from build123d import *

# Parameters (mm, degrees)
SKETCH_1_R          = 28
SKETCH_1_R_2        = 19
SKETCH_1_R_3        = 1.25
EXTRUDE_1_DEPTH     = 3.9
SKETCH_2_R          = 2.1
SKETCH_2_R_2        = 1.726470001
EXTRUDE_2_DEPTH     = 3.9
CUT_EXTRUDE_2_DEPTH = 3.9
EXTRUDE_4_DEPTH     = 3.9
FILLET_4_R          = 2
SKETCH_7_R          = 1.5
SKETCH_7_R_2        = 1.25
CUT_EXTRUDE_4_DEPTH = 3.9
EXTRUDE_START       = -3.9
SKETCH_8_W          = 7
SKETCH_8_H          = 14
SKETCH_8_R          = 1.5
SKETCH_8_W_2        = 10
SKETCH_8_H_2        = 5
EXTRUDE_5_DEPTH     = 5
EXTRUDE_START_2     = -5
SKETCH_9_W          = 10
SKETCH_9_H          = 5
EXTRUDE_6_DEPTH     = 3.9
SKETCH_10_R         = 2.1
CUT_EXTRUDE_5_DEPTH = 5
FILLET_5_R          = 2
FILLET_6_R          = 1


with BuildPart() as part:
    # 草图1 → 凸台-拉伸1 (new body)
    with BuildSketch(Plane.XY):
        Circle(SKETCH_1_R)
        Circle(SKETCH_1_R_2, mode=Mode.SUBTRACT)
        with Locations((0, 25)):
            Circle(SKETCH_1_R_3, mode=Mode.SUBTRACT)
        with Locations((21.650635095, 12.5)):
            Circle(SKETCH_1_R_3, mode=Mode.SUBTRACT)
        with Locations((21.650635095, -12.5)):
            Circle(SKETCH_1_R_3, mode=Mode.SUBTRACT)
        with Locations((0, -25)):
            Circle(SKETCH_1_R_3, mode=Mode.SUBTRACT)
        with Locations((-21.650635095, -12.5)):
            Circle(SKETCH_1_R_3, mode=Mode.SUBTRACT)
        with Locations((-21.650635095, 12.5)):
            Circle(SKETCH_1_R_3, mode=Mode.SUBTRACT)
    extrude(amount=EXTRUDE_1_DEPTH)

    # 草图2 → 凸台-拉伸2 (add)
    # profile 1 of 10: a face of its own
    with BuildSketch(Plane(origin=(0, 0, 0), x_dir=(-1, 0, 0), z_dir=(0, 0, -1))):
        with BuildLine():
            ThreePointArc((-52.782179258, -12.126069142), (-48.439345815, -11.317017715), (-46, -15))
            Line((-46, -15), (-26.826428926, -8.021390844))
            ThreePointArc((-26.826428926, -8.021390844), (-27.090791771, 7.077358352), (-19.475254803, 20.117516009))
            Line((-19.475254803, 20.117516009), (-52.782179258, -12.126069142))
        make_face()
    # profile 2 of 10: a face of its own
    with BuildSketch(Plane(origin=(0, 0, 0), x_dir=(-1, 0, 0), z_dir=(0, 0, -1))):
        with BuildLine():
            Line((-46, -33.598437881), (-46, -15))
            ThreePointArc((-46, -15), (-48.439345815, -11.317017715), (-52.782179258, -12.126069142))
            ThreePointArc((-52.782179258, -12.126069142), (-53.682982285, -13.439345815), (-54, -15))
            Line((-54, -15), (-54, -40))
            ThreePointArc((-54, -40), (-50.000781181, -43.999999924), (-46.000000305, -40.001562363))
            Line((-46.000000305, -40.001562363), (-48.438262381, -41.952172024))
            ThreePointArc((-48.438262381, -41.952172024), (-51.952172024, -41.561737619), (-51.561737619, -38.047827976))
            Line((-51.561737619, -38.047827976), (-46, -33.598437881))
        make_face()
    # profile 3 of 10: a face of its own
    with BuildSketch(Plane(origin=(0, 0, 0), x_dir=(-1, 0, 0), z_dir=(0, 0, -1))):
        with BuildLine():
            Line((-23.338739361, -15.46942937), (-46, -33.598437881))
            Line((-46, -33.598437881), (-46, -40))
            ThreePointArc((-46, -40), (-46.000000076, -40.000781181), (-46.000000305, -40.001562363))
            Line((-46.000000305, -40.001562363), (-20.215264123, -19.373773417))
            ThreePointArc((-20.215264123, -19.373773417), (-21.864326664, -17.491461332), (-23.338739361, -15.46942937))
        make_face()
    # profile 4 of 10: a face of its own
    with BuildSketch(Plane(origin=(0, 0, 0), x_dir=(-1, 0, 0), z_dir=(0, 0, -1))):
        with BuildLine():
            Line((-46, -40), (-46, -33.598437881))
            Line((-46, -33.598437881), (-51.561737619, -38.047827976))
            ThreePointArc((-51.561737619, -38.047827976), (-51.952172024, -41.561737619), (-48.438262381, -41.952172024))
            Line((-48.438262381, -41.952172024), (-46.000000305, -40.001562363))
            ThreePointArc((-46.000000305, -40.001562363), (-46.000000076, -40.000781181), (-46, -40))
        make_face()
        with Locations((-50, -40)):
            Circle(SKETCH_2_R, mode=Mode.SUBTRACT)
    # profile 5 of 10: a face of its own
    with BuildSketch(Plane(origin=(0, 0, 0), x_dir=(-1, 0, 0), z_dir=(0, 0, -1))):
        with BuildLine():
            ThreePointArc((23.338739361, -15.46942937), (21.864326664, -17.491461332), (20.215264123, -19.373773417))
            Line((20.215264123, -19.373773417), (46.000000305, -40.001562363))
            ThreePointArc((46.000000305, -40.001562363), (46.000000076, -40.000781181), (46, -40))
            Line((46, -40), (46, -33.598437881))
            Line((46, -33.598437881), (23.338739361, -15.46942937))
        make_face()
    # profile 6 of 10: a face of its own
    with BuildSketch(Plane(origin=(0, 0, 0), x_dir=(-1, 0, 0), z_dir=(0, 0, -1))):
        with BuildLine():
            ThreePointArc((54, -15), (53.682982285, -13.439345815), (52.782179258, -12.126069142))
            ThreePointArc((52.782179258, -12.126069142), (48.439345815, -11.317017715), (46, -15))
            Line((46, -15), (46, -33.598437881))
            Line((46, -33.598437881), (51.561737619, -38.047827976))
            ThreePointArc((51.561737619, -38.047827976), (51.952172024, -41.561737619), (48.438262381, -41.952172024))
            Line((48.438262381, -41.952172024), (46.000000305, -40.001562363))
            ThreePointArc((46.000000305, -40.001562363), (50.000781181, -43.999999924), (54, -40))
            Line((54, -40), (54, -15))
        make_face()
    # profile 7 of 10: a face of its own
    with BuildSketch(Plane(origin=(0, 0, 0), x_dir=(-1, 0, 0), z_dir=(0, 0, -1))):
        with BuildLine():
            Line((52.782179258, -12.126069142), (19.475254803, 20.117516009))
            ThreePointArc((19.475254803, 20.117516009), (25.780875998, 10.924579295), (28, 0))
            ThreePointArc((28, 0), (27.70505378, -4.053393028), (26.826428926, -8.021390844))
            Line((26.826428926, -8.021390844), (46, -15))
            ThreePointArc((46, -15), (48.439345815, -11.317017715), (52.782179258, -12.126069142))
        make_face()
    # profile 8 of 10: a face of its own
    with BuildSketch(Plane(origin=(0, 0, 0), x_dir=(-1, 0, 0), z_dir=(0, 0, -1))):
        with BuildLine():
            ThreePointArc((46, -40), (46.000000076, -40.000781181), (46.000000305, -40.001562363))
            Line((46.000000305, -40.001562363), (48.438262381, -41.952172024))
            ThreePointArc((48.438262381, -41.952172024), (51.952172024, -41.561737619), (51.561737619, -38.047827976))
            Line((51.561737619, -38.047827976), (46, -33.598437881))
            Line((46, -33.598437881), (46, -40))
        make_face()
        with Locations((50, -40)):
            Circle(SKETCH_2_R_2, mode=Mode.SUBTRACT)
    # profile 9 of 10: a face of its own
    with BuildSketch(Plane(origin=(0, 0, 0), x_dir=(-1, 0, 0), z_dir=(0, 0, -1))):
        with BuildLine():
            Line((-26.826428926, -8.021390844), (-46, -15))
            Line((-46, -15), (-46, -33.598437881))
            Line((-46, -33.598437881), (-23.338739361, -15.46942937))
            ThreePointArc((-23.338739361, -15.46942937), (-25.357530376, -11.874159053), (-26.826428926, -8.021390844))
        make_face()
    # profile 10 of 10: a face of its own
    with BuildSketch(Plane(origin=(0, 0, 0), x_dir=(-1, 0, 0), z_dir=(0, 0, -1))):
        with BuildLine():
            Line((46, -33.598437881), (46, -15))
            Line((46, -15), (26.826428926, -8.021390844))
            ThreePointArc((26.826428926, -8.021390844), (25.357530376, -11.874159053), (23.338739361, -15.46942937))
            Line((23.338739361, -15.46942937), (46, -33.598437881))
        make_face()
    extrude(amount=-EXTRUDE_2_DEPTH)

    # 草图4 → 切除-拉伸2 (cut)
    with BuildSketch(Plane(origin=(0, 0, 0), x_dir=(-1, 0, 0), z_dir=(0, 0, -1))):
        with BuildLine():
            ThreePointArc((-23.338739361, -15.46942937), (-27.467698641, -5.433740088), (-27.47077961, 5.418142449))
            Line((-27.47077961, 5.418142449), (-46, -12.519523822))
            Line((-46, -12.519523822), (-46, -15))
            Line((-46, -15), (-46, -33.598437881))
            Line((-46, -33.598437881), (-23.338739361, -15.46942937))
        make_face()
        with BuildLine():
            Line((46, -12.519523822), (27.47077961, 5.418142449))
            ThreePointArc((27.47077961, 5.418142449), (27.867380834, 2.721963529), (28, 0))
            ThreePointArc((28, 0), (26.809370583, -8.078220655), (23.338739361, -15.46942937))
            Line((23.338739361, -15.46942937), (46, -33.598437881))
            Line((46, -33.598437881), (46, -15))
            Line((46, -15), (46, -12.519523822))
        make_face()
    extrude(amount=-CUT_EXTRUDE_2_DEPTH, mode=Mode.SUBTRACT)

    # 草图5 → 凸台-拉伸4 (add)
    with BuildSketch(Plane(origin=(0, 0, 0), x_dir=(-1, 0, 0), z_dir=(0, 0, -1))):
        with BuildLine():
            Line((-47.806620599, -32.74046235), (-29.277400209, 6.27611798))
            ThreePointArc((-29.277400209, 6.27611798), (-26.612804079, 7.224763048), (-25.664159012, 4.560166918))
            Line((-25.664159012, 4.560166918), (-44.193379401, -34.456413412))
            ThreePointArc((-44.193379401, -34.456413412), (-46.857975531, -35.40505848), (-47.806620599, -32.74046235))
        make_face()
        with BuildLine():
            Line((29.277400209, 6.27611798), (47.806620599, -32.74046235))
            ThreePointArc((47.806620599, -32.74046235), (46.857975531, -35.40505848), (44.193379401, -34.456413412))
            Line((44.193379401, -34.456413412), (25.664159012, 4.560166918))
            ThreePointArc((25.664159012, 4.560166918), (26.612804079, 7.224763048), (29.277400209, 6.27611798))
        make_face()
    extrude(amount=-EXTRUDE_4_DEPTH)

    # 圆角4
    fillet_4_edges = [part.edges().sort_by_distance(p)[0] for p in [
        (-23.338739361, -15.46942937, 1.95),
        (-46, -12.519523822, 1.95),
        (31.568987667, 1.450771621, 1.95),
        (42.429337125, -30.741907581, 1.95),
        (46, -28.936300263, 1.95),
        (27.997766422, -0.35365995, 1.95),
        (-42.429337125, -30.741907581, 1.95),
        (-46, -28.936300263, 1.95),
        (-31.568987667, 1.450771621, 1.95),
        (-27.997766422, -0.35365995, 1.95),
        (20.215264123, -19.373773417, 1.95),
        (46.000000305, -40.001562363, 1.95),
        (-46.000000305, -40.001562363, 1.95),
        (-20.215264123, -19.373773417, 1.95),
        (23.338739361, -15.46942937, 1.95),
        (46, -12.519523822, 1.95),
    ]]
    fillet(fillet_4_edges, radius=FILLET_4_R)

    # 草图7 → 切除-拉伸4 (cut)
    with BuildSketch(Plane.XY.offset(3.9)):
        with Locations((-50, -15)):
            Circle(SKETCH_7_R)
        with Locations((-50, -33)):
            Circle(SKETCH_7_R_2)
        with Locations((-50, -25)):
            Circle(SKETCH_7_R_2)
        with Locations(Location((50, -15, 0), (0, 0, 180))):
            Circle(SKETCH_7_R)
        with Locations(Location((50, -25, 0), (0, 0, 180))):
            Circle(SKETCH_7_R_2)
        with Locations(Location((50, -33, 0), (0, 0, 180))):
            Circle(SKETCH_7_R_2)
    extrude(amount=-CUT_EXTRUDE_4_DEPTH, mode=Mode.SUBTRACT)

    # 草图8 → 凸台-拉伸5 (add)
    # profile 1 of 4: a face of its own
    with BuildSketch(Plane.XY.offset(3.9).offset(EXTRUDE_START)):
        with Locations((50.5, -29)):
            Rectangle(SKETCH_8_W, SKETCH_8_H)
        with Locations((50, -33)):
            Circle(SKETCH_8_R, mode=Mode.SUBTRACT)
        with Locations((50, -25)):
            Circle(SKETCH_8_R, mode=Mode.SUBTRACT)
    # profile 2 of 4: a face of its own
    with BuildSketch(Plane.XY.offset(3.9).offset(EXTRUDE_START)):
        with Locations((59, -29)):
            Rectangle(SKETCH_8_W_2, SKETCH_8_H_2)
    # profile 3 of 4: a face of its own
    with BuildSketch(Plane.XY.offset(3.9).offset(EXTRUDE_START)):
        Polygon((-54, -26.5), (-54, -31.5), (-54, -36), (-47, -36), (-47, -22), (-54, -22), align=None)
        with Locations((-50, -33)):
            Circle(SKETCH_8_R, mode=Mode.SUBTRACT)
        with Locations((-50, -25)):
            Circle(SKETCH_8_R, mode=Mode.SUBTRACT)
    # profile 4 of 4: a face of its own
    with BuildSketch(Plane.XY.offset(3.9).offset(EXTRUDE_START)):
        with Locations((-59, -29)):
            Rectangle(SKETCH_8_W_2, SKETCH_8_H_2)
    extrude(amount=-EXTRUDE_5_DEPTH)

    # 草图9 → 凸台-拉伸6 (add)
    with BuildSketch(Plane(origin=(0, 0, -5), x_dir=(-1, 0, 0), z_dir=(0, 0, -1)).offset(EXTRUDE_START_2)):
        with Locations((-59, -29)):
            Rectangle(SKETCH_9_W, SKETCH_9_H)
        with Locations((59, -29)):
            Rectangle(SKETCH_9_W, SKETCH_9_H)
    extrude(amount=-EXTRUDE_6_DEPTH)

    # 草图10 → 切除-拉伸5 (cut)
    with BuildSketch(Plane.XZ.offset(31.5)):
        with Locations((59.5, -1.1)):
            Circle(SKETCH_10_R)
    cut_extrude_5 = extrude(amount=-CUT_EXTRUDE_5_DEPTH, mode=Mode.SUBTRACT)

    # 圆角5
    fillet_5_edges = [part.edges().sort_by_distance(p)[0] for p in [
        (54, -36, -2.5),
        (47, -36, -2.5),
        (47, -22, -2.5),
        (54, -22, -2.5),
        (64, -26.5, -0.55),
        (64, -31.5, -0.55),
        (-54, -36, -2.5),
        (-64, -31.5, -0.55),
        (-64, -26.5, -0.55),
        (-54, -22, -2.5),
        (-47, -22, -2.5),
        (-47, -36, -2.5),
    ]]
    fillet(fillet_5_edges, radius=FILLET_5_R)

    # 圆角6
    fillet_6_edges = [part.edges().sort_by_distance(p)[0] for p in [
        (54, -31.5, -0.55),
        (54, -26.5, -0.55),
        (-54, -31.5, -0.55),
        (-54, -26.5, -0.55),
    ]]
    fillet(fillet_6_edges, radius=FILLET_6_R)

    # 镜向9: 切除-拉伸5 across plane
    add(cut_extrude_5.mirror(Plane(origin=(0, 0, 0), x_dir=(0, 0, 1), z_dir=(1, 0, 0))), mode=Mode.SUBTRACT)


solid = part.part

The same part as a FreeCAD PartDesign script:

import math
import FreeCAD as App
import Part
import Sketcher

V = App.Vector


def edges_at(feature, points):
    """Names of the edges that pass closest to the given points."""
    edges = feature.Shape.Edges
    near = lambda p: min(range(len(edges)), key=lambda i: edges[i].distToShape(Part.Vertex(*p))[0])
    return sorted({f"Edge{near(p) + 1}" for p in points})

doc = App.newDocument("Part")
params = doc.addObject("Spreadsheet::Sheet", "Params")
for row, (alias, value) in enumerate([
    ("sketch1_diameter", "56 mm"),
    ("sketch1_diameter2", "38 mm"),
    ("sketch1_diameter3", "2.5 mm"),
    ("pad1_length", "3.9 mm"),
    ("sketch2_radius", "28 mm"),
    ("sketch2_radius2", "4 mm"),
    ("sketch2_diameter", "4.2 mm"),
    ("sketch2_height", "25 mm"),
    ("pad2_length", "3.9 mm"),
    ("sketch3_radius", "28 mm"),
    ("pocket1_length", "3.9 mm"),
    ("sketch4_radius", "2 mm"),
    ("sketch4_radius2", "2 mm"),
    ("sketch4_radius3", "2 mm"),
    ("sketch4_radius4", "2 mm"),
    ("pad3_length", "3.9 mm"),
    ("fillet_radius", "2 mm"),
    ("sketch5_diameter", "3 mm"),
    ("sketch5_diameter2", "2.5 mm"),
    ("pocket2_length", "3.9 mm"),
    ("sketch6_diameter", "3 mm"),
    ("sketch6_width", "7 mm"),
    ("sketch6_width2", "10 mm"),
    ("sketch6_height", "14 mm"),
    ("sketch6_height2", "5 mm"),
    ("pad4_length", "5 mm"),
    ("sketch7_width", "10 mm"),
    ("sketch7_height", "5 mm"),
    ("pad5_length", "3.9 mm"),
    ("sketch8_diameter", "4.2 mm"),
    ("pocket3_length", "5 mm"),
    ("fillet2_radius", "2 mm"),
    ("fillet3_radius", "1 mm"),
], start=1):
    params.set(f"A{row}", alias)
    params.set(f"B{row}", "=" + value)
    params.setAlias(f"B{row}", alias)

body = doc.addObject("PartDesign::Body", "Body")

# Sketch on XY plane
sketch1 = body.newObject("Sketcher::SketchObject", "Sketch")
sketch1.AttachmentSupport = (doc.getObject("XY_Plane"), [""])
sketch1.MapMode = "FlatFace"
sketch1.addGeometry(Part.Circle(V(0, 0, 0), V(0, 0, 1), 28), False)
sketch1.addGeometry(Part.Circle(V(-21.7, -12.5, 0), V(0, 0, 1), 1.2), False)
sketch1.addGeometry(Part.Circle(V(0, -25, 0), V(0, 0, 1), 1.2), False)
sketch1.addGeometry(Part.Circle(V(21.7, -12.5, 0), V(0, 0, 1), 1.2), False)
sketch1.addGeometry(Part.Circle(V(-21.7, 12.5, 0), V(0, 0, 1), 1.2), False)
sketch1.addGeometry(Part.Circle(V(0, 0, 0), V(0, 0, 1), 19), False)
sketch1.addGeometry(Part.Circle(V(21.7, 12.5, 0), V(0, 0, 1), 1.2), False)
sketch1.addGeometry(Part.Circle(V(0, 25, 0), V(0, 0, 1), 1.2), False)
sketch1.addConstraint(Sketcher.Constraint("Coincident", 0, 3, -1, 1))
sketch1.addConstraint(Sketcher.Constraint("Coincident", 5, 3, -1, 1))
sketch1.addConstraint(Sketcher.Constraint("Equal", 1, 2))
sketch1.addConstraint(Sketcher.Constraint("Equal", 2, 3))
sketch1.addConstraint(Sketcher.Constraint("Equal", 3, 4))
sketch1.addConstraint(Sketcher.Constraint("Equal", 4, 6))
sketch1.addConstraint(Sketcher.Constraint("Equal", 6, 7))
sketch1.addConstraint(Sketcher.Constraint("Symmetric", 3, 3, 4, 3, -1, 1))
sketch1.addConstraint(Sketcher.Constraint("Symmetric", 1, 3, 6, 3, -1, 1))
sketch1.addConstraint(Sketcher.Constraint("Symmetric", 2, 3, 7, 3, -1, 1))
sketch1.addConstraint(Sketcher.Constraint("Symmetric", 1, 3, 3, 3, -2))
sketch1.addConstraint(Sketcher.Constraint("PointOnObject", 2, 3, -2))
sketch1.addConstraint(Sketcher.Constraint("Diameter", 0, 56.0))
sketch1.addConstraint(Sketcher.Constraint("Diameter", 5, 38.0))
sketch1.addConstraint(Sketcher.Constraint("Diameter", 1, 2.5))
sketch1.addConstraint(Sketcher.Constraint("DistanceY", 2, 3, -1, 1, 25.0))
sketch1.addConstraint(Sketcher.Constraint("DistanceY", 1, 3, 4, 3, 25.0))
sketch1.addConstraint(Sketcher.Constraint("DistanceX", 1, 3, 3, 3, 43.30127))
sketch1.setExpression("Constraints[12]", "Params.sketch1_diameter")
sketch1.setExpression("Constraints[13]", "Params.sketch1_diameter2")
sketch1.setExpression("Constraints[14]", "Params.sketch1_diameter3")
pad1 = body.newObject("PartDesign::Pad", "Pad")
pad1.Profile = sketch1
pad1.setExpression("Length", "Params.pad1_length")

# Sketch on XY plane
sketch2 = body.newObject("Sketcher::SketchObject", "Sketch001")
sketch2.AttachmentSupport = (doc.getObject("XY_Plane"), [""])
sketch2.MapMode = "FlatFace"
sketch2.addGeometry(Part.ArcOfCircle(Part.Circle(V(0, 0, 0), V(0, 0, 1), 28), math.radians(-17), math.radians(46)), False)
sketch2.addGeometry(Part.LineSegment(V(19.5, 20.1, 0), V(52.8, -12.1, 0)), False)
sketch2.addGeometry(Part.ArcOfCircle(Part.Circle(V(50, -15, 0), V(0, 0, 1), 4), math.radians(0), math.radians(46)), False)
sketch2.addGeometry(Part.LineSegment(V(54, -15, 0), V(54, -40, 0)), False)
sketch2.addGeometry(Part.ArcOfCircle(Part.Circle(V(50, -40, 0), V(0, 0, 1), 4), math.radians(-180), math.radians(0)), False)
sketch2.addGeometry(Part.LineSegment(V(46, -40, 0), V(20.2, -19.4, 0)), False)
sketch2.addGeometry(Part.ArcOfCircle(Part.Circle(V(0, 0, 0), V(0, 0, 1), 28), math.radians(-43.78), math.radians(-33.54)), False)
sketch2.addGeometry(Part.ArcOfCircle(Part.Circle(V(0, 0, 0), V(0, 0, 1), 28), math.radians(-33.54), math.radians(-16.65)), False)
sketch2.addGeometry(Part.Circle(V(50, -40, 0), V(0, 0, 1), 2.1), False)
sketch2.addGeometry(Part.ArcOfCircle(Part.Circle(V(0, 0, 0), V(0, 0, 1), 28), math.radians(-146.46), math.radians(-136.22)), False)
sketch2.addGeometry(Part.LineSegment(V(-20.2, -19.4, 0), V(-46, -40, 0)), False)
sketch2.addGeometry(Part.ArcOfCircle(Part.Circle(V(-50, -40, 0), V(0, 0, 1), 4), math.radians(180), math.radians(360)), False)
sketch2.addGeometry(Part.LineSegment(V(-54, -40, 0), V(-54, -15, 0)), False)
sketch2.addGeometry(Part.ArcOfCircle(Part.Circle(V(-50, -15, 0), V(0, 0, 1), 4), math.radians(134), math.radians(180)), False)
sketch2.addGeometry(Part.LineSegment(V(-52.8, -12.1, 0), V(-19.5, 20.1, 0)), False)
sketch2.addGeometry(Part.ArcOfCircle(Part.Circle(V(0, 0, 0), V(0, 0, 1), 28), math.radians(134), math.radians(180)), False)
sketch2.addGeometry(Part.ArcOfCircle(Part.Circle(V(0, 0, 0), V(0, 0, 1), 28), math.radians(-180), math.radians(-163.35)), False)
sketch2.addGeometry(Part.ArcOfCircle(Part.Circle(V(0, 0, 0), V(0, 0, 1), 28), math.radians(-163.35), math.radians(-146.46)), False)
sketch2.addGeometry(Part.Circle(V(-50, -40, 0), V(0, 0, 1), 1.7), False)
sketch2.addConstraint(Sketcher.Constraint("Tangent", 0, 2, 1, 1))
sketch2.addConstraint(Sketcher.Constraint("Tangent", 1, 2, 2, 2))
sketch2.addConstraint(Sketcher.Constraint("Tangent", 2, 1, 3, 1))
sketch2.addConstraint(Sketcher.Constraint("Tangent", 3, 2, 4, 2))
sketch2.addConstraint(Sketcher.Constraint("Coincident", 4, 1, 5, 1))
sketch2.addConstraint(Sketcher.Constraint("Coincident", 5, 2, 6, 1))
sketch2.addConstraint(Sketcher.Constraint("Tangent", 6, 2, 7, 1))
sketch2.addConstraint(Sketcher.Constraint("Tangent", 7, 2, 0, 1))
sketch2.addConstraint(Sketcher.Constraint("Coincident", 9, 2, 10, 1))
sketch2.addConstraint(Sketcher.Constraint("Coincident", 10, 2, 11, 2))
sketch2.addConstraint(Sketcher.Constraint("Tangent", 11, 1, 12, 1))
sketch2.addConstraint(Sketcher.Constraint("Tangent", 12, 2, 13, 2))
sketch2.addConstraint(Sketcher.Constraint("Tangent", 13, 1, 14, 1))
sketch2.addConstraint(Sketcher.Constraint("Tangent", 14, 2, 15, 1))
sketch2.addConstraint(Sketcher.Constraint("Tangent", 15, 2, 16, 1))
sketch2.addConstraint(Sketcher.Constraint("Tangent", 16, 2, 17, 1))
sketch2.addConstraint(Sketcher.Constraint("Tangent", 17, 2, 9, 1))
sketch2.addConstraint(Sketcher.Constraint("Vertical", 3))
sketch2.addConstraint(Sketcher.Constraint("Vertical", 12))
sketch2.addConstraint(Sketcher.Constraint("Coincident", 0, 3, -1, 1))
sketch2.addConstraint(Sketcher.Constraint("Coincident", 6, 3, -1, 1))
sketch2.addConstraint(Sketcher.Constraint("Coincident", 9, 3, -1, 1))
sketch2.addConstraint(Sketcher.Constraint("Coincident", 15, 3, -1, 1))
sketch2.addConstraint(Sketcher.Constraint("Coincident", 8, 3, 4, 3))
sketch2.addConstraint(Sketcher.Constraint("Coincident", 18, 3, 11, 3))
sketch2.addConstraint(Sketcher.Constraint("Equal", 2, 4))
sketch2.addConstraint(Sketcher.Constraint("Equal", 7, 9))
sketch2.addConstraint(Sketcher.Constraint("Equal", 4, 11))
sketch2.addConstraint(Sketcher.Constraint("Equal", 11, 13))
sketch2.addConstraint(Sketcher.Constraint("Equal", 9, 15))
sketch2.addConstraint(Sketcher.Constraint("Symmetric", 4, 3, 11, 3, -2))
sketch2.addConstraint(Sketcher.Constraint("PointOnObject", 15, 2, -1))
sketch2.addConstraint(Sketcher.Constraint("Horizontal", 2, 3, 13, 3))
sketch2.addConstraint(Sketcher.Constraint("Horizontal", 5, 2, 9, 2))
sketch2.addConstraint(Sketcher.Constraint("Horizontal", 4, 1, 10, 2))
sketch2.addConstraint(Sketcher.Constraint("Horizontal", 7, 2, 16, 2))
sketch2.addConstraint(Sketcher.Constraint("Horizontal", 6, 2, 17, 2))
sketch2.addConstraint(Sketcher.Constraint("Radius", 0, 28.0))
sketch2.addConstraint(Sketcher.Constraint("Radius", 2, 4.0))
sketch2.addConstraint(Sketcher.Constraint("Diameter", 8, 4.2))
sketch2.addConstraint(Sketcher.Constraint("DistanceY", 3, 2, 3, 1, 25.0))
sketch2.addConstraint(Sketcher.Constraint("DistanceX", -1, 1, 2, 3, 50.0))
sketch2.addConstraint(Sketcher.Constraint("DistanceY", 2, 3, -1, 1, 15.0))
sketch2.addConstraint(Sketcher.Constraint("Diameter", 18, 3.45294))
sketch2.addConstraint(Sketcher.Constraint("DistanceX", -1, 1, 6, 2, 23.338739))
sketch2.addConstraint(Sketcher.Constraint("DistanceX", -1, 1, 7, 2, 26.826429))
sketch2.addConstraint(Sketcher.Constraint("DistanceY", 10, 2, 9, 2, 20.627789))
sketch2.addConstraint(Sketcher.Constraint("Distance", 5, 33.020574))
sketch2.setExpression("Constraints[37]", "Params.sketch2_radius")
sketch2.setExpression("Constraints[38]", "Params.sketch2_radius2")
sketch2.setExpression("Constraints[39]", "Params.sketch2_diameter")
sketch2.setExpression("Constraints[40]", "Params.sketch2_height")
pad2 = body.newObject("PartDesign::Pad", "Pad001")
pad2.Profile = sketch2
pad2.setExpression("Length", "Params.pad2_length")

# Sketch on XY plane
sketch3 = body.newObject("Sketcher::SketchObject", "Sketch002")
sketch3.AttachmentSupport = (doc.getObject("XY_Plane"), [""])
sketch3.MapMode = "FlatFace"
sketch3.addGeometry(Part.ArcOfCircle(Part.Circle(V(0, 0, 0), V(0, 0, 1), 28), math.radians(-34), math.radians(11)), False)
sketch3.addGeometry(Part.LineSegment(V(27, 5, 0), V(46, -13, 0)), False)
sketch3.addGeometry(Part.LineSegment(V(46, -13, 0), V(46, -34, 0)), False)
sketch3.addGeometry(Part.LineSegment(V(46, -34, 0), V(23, -15, 0)), False)
sketch3.addGeometry(Part.LineSegment(V(-46, -13, 0), V(-27, 5, 0)), False)
sketch3.addGeometry(Part.ArcOfCircle(Part.Circle(V(0, 0, 0), V(0, 0, 1), 28), math.radians(168.84), math.radians(180)), False)
sketch3.addGeometry(Part.ArcOfCircle(Part.Circle(V(0, 0, 0), V(0, 0, 1), 28), math.radians(180), math.radians(214)), False)
sketch3.addGeometry(Part.LineSegment(V(-23, -15, 0), V(-46, -34, 0)), False)
sketch3.addGeometry(Part.LineSegment(V(-46, -34, 0), V(-46, -13, 0)), False)
sketch3.addConstraint(Sketcher.Constraint("Coincident", 0, 2, 1, 1))
sketch3.addConstraint(Sketcher.Constraint("Coincident", 1, 2, 2, 1))
sketch3.addConstraint(Sketcher.Constraint("Coincident", 2, 2, 3, 1))
sketch3.addConstraint(Sketcher.Constraint("Coincident", 3, 2, 0, 1))
sketch3.addConstraint(Sketcher.Constraint("Coincident", 4, 2, 5, 1))
sketch3.addConstraint(Sketcher.Constraint("Tangent", 5, 2, 6, 1))
sketch3.addConstraint(Sketcher.Constraint("Coincident", 6, 2, 7, 1))
sketch3.addConstraint(Sketcher.Constraint("Coincident", 7, 2, 8, 1))
sketch3.addConstraint(Sketcher.Constraint("Coincident", 8, 2, 4, 1))
sketch3.addConstraint(Sketcher.Constraint("Vertical", 2))
sketch3.addConstraint(Sketcher.Constraint("Vertical", 8))
sketch3.addConstraint(Sketcher.Constraint("Coincident", 0, 3, -1, 1))
sketch3.addConstraint(Sketcher.Constraint("Coincident", 5, 3, -1, 1))
sketch3.addConstraint(Sketcher.Constraint("Equal", 0, 5))
sketch3.addConstraint(Sketcher.Constraint("Equal", 5, 6))
sketch3.addConstraint(Sketcher.Constraint("Symmetric", 2, 2, 7, 2, -2))
sketch3.addConstraint(Sketcher.Constraint("PointOnObject", 5, 2, -1))
sketch3.addConstraint(Sketcher.Constraint("Horizontal", 0, 2, 4, 2))
sketch3.addConstraint(Sketcher.Constraint("Horizontal", 3, 2, 6, 2))
sketch3.addConstraint(Sketcher.Constraint("Horizontal", 1, 2, 8, 2))
sketch3.addConstraint(Sketcher.Constraint("Radius", 0, 28.0))
sketch3.addConstraint(Sketcher.Constraint("DistanceX", -1, 1, 1, 2, 46.0))
sketch3.addConstraint(Sketcher.Constraint("DistanceY", 2, 2, 2, 1, 21.078914))
sketch3.addConstraint(Sketcher.Constraint("DistanceX", -1, 1, 0, 2, 27.47078))
sketch3.addConstraint(Sketcher.Constraint("DistanceX", -1, 1, 3, 2, 23.338739))
sketch3.addConstraint(Sketcher.Constraint("DistanceY", 2, 2, 0, 2, 39.01658))
sketch3.setExpression("Constraints[20]", "Params.sketch3_radius")
pocket1 = body.newObject("PartDesign::Pocket", "Pocket")
pocket1.Profile = sketch3
pocket1.setExpression("Length", "Params.pocket1_length")
pocket1.Reversed = True

# Sketch on XY plane
sketch4 = body.newObject("Sketcher::SketchObject", "Sketch003")
sketch4.AttachmentSupport = (doc.getObject("XY_Plane"), [""])
sketch4.MapMode = "FlatFace"
sketch4.addGeometry(Part.LineSegment(V(29.2774, 6.276118, 0), V(47.806621, -32.740462, 0)), False)
sketch4.addGeometry(Part.ArcOfCircle(Part.Circle(V(46, -33.598438, 0), V(0, 0, 1), 2), math.radians(-154.596662), math.radians(25.403338)), False)
sketch4.addGeometry(Part.LineSegment(V(44.193379, -34.456413, 0), V(25.664159, 4.560167, 0)), False)
sketch4.addGeometry(Part.ArcOfCircle(Part.Circle(V(27.47078, 5.418142, 0), V(0, 0, 1), 2), math.radians(25.403338), math.radians(205.403338)), False)
sketch4.addGeometry(Part.LineSegment(V(-47.806621, -32.740462, 0), V(-29.2774, 6.276118, 0)), False)
sketch4.addGeometry(Part.ArcOfCircle(Part.Circle(V(-27.47078, 5.418142, 0), V(0, 0, 1), 2), math.radians(-25.403338), math.radians(154.596662)), False)
sketch4.addGeometry(Part.LineSegment(V(-25.664159, 4.560167, 0), V(-44.193379, -34.456413, 0)), False)
sketch4.addGeometry(Part.ArcOfCircle(Part.Circle(V(-46, -33.598438, 0), V(0, 0, 1), 2), math.radians(154.596662), math.radians(334.596662)), False)
sketch4.addConstraint(Sketcher.Constraint("Coincident", 0, 2, 1, 2))
sketch4.addConstraint(Sketcher.Constraint("Coincident", 1, 1, 2, 1))
sketch4.addConstraint(Sketcher.Constraint("Coincident", 2, 2, 3, 2))
sketch4.addConstraint(Sketcher.Constraint("Coincident", 3, 1, 0, 1))
sketch4.addConstraint(Sketcher.Constraint("Coincident", 4, 2, 5, 2))
sketch4.addConstraint(Sketcher.Constraint("Coincident", 5, 1, 6, 1))
sketch4.addConstraint(Sketcher.Constraint("Coincident", 6, 2, 7, 2))
sketch4.addConstraint(Sketcher.Constraint("Coincident", 7, 1, 4, 1))
sketch4.addConstraint(Sketcher.Constraint("Radius", 1, 2.0))
sketch4.addConstraint(Sketcher.Constraint("Radius", 3, 2.0))
sketch4.addConstraint(Sketcher.Constraint("Radius", 5, 2.0))
sketch4.addConstraint(Sketcher.Constraint("Radius", 7, 2.0))
sketch4.addConstraint(Sketcher.Constraint("DistanceX", -1, 1, 1, 3, 46.0))
sketch4.addConstraint(Sketcher.Constraint("DistanceX", 7, 3, -1, 1, 46.0))
sketch4.addConstraint(Sketcher.Constraint("DistanceX", -1, 1, 3, 1, 29.2774))
sketch4.addConstraint(Sketcher.Constraint("DistanceX", 4, 2, -1, 1, 29.2774))
sketch4.addConstraint(Sketcher.Constraint("DistanceX", 5, 3, 0, 2, 75.2774))
sketch4.addConstraint(Sketcher.Constraint("DistanceX", 3, 3, 1, 1, 16.7226))
sketch4.addConstraint(Sketcher.Constraint("DistanceX", 6, 2, 5, 3, 16.7226))
sketch4.addConstraint(Sketcher.Constraint("DistanceX", -1, 1, 3, 3, 27.47078))
sketch4.addConstraint(Sketcher.Constraint("DistanceX", 5, 3, -1, 1, 27.47078))
sketch4.addConstraint(Sketcher.Constraint("DistanceX", -1, 1, 2, 2, 25.664159))
sketch4.addConstraint(Sketcher.Constraint("DistanceX", 5, 1, -1, 1, 25.664159))
sketch4.addConstraint(Sketcher.Constraint("DistanceX", 7, 1, -1, 1, 47.806621))
sketch4.addConstraint(Sketcher.Constraint("DistanceY", 1, 3, 3, 3, 39.01658))
sketch4.addConstraint(Sketcher.Constraint("DistanceY", 1, 3, 5, 3, 39.01658))
sketch4.addConstraint(Sketcher.Constraint("DistanceY", 7, 3, 5, 3, 39.01658))
sketch4.addConstraint(Sketcher.Constraint("DistanceY", 1, 3, -1, 1, 33.598438))
sketch4.setExpression("Constraints[8]", "Params.sketch4_radius")
sketch4.setExpression("Constraints[9]", "Params.sketch4_radius2")
sketch4.setExpression("Constraints[10]", "Params.sketch4_radius3")
sketch4.setExpression("Constraints[11]", "Params.sketch4_radius4")
pad3 = body.newObject("PartDesign::Pad", "Pad002")
pad3.Profile = sketch4
pad3.setExpression("Length", "Params.pad3_length")
doc.recompute()

fillet = body.newObject("PartDesign::Fillet", "Fillet")
fillet.Base = (pad3, edges_at(pad3, [
    (-23.339, -15.469, 1.95),
    (-46, -12.52, 1.95),
    (31.569, 1.451, 1.95),
    (42.429, -30.742, 1.95),
    (46, -28.936, 1.95),
    (27.998, -0.354, 1.95),
    (-42.429, -30.742, 1.95),
    (-46, -28.936, 1.95),
    (-31.569, 1.451, 1.95),
    (-27.998, -0.354, 1.95),
    (20.215, -19.374, 1.95),
    (46, -40.002, 1.95),
    (-46, -40.002, 1.95),
    (-20.215, -19.374, 1.95),
    (23.339, -15.469, 1.95),
    (46, -12.52, 1.95),
]))
fillet.setExpression("Radius", "Params.fillet_radius")

# Sketch on XY plane
sketch5 = body.newObject("Sketcher::SketchObject", "Sketch004")
sketch5.AttachmentSupport = (doc.getObject("XY_Plane"), [""])
sketch5.MapMode = "FlatFace"
sketch5.AttachmentOffset = App.Placement(V(0, 0, 3.9), App.Rotation())
sketch5.addGeometry(Part.Circle(V(-50, -15, 0), V(0, 0, 1), 1.5), False)
sketch5.addGeometry(Part.Circle(V(-50, -33, 0), V(0, 0, 1), 1.2), False)
sketch5.addGeometry(Part.Circle(V(-50, -25, 0), V(0, 0, 1), 1.2), False)
sketch5.addGeometry(Part.Circle(V(50, -15, 0), V(0, 0, 1), 1.5), False)
sketch5.addGeometry(Part.Circle(V(50, -25, 0), V(0, 0, 1), 1.2), False)
sketch5.addGeometry(Part.Circle(V(50, -33, 0), V(0, 0, 1), 1.2), False)
sketch5.addConstraint(Sketcher.Constraint("Equal", 1, 2))
sketch5.addConstraint(Sketcher.Constraint("Equal", 0, 3))
sketch5.addConstraint(Sketcher.Constraint("Equal", 2, 4))
sketch5.addConstraint(Sketcher.Constraint("Equal", 4, 5))
sketch5.addConstraint(Sketcher.Constraint("Symmetric", 0, 3, 3, 3, -2))
sketch5.addConstraint(Sketcher.Constraint("Symmetric", 2, 3, 4, 3, -2))
sketch5.addConstraint(Sketcher.Constraint("Symmetric", 1, 3, 5, 3, -2))
sketch5.addConstraint(Sketcher.Constraint("Vertical", 0, 3, 1, 3))
sketch5.addConstraint(Sketcher.Constraint("Vertical", 1, 3, 2, 3))
sketch5.addConstraint(Sketcher.Constraint("Diameter", 0, 3.0))
sketch5.addConstraint(Sketcher.Constraint("Diameter", 1, 2.5))
sketch5.addConstraint(Sketcher.Constraint("DistanceX", 0, 3, -1, 1, 50.0))
sketch5.addConstraint(Sketcher.Constraint("DistanceY", 0, 3, -1, 1, 15.0))
sketch5.addConstraint(Sketcher.Constraint("DistanceY", 1, 3, -1, 1, 33.0))
sketch5.addConstraint(Sketcher.Constraint("DistanceY", 2, 3, -1, 1, 25.0))
sketch5.setExpression("Constraints[9]", "Params.sketch5_diameter")
sketch5.setExpression("Constraints[10]", "Params.sketch5_diameter2")
pocket2 = body.newObject("PartDesign::Pocket", "Pocket001")
pocket2.Profile = sketch5
pocket2.setExpression("Length", "Params.pocket2_length")

# Sketch on XY plane
sketch6 = body.newObject("Sketcher::SketchObject", "Sketch005")
sketch6.AttachmentSupport = (doc.getObject("XY_Plane"), [""])
sketch6.MapMode = "FlatFace"
sketch6.addGeometry(Part.LineSegment(V(47, -22, 0), V(47, -36, 0)), False)
sketch6.addGeometry(Part.LineSegment(V(47, -36, 0), V(54, -36, 0)), False)
sketch6.addGeometry(Part.LineSegment(V(54, -36, 0), V(54, -31.5, 0)), False)
sketch6.addGeometry(Part.LineSegment(V(54, -31.5, 0), V(64, -31.5, 0)), False)
sketch6.addGeometry(Part.LineSegment(V(64, -31.5, 0), V(64, -26.5, 0)), False)
sketch6.addGeometry(Part.LineSegment(V(64, -26.5, 0), V(54, -26.5, 0)), False)
sketch6.addGeometry(Part.LineSegment(V(54, -26.5, 0), V(54, -22, 0)), False)
sketch6.addGeometry(Part.LineSegment(V(54, -22, 0), V(47, -22, 0)), False)
sketch6.addGeometry(Part.Circle(V(50, -33, 0), V(0, 0, 1), 1.5), False)
sketch6.addGeometry(Part.Circle(V(50, -25, 0), V(0, 0, 1), 1.5), False)
sketch6.addGeometry(Part.LineSegment(V(-54, -36, 0), V(-47, -36, 0)), False)
sketch6.addGeometry(Part.LineSegment(V(-47, -36, 0), V(-47, -22, 0)), False)
sketch6.addGeometry(Part.LineSegment(V(-47, -22, 0), V(-54, -22, 0)), False)
sketch6.addGeometry(Part.LineSegment(V(-54, -22, 0), V(-54, -26.5, 0)), False)
sketch6.addGeometry(Part.LineSegment(V(-54, -26.5, 0), V(-64, -26.5, 0)), False)
sketch6.addGeometry(Part.LineSegment(V(-64, -26.5, 0), V(-64, -31.5, 0)), False)
sketch6.addGeometry(Part.LineSegment(V(-64, -31.5, 0), V(-54, -31.5, 0)), False)
sketch6.addGeometry(Part.LineSegment(V(-54, -31.5, 0), V(-54, -36, 0)), False)
sketch6.addGeometry(Part.Circle(V(-50, -33, 0), V(0, 0, 1), 1.5), False)
sketch6.addGeometry(Part.Circle(V(-50, -25, 0), V(0, 0, 1), 1.5), False)
sketch6.addConstraint(Sketcher.Constraint("Coincident", 0, 2, 1, 1))
sketch6.addConstraint(Sketcher.Constraint("Coincident", 1, 2, 2, 1))
sketch6.addConstraint(Sketcher.Constraint("Coincident", 2, 2, 3, 1))
sketch6.addConstraint(Sketcher.Constraint("Coincident", 3, 2, 4, 1))
sketch6.addConstraint(Sketcher.Constraint("Coincident", 4, 2, 5, 1))
sketch6.addConstraint(Sketcher.Constraint("Coincident", 5, 2, 6, 1))
sketch6.addConstraint(Sketcher.Constraint("Coincident", 6, 2, 7, 1))
sketch6.addConstraint(Sketcher.Constraint("Coincident", 7, 2, 0, 1))
sketch6.addConstraint(Sketcher.Constraint("Coincident", 10, 2, 11, 1))
sketch6.addConstraint(Sketcher.Constraint("Coincident", 11, 2, 12, 1))
sketch6.addConstraint(Sketcher.Constraint("Coincident", 12, 2, 13, 1))
sketch6.addConstraint(Sketcher.Constraint("Coincident", 13, 2, 14, 1))
sketch6.addConstraint(Sketcher.Constraint("Coincident", 14, 2, 15, 1))
sketch6.addConstraint(Sketcher.Constraint("Coincident", 15, 2, 16, 1))
sketch6.addConstraint(Sketcher.Constraint("Coincident", 16, 2, 17, 1))
sketch6.addConstraint(Sketcher.Constraint("Coincident", 17, 2, 10, 1))
sketch6.addConstraint(Sketcher.Constraint("Vertical", 0))
sketch6.addConstraint(Sketcher.Constraint("Horizontal", 1))
sketch6.addConstraint(Sketcher.Constraint("Vertical", 2))
sketch6.addConstraint(Sketcher.Constraint("Horizontal", 3))
sketch6.addConstraint(Sketcher.Constraint("Vertical", 4))
sketch6.addConstraint(Sketcher.Constraint("Horizontal", 5))
sketch6.addConstraint(Sketcher.Constraint("Vertical", 6))
sketch6.addConstraint(Sketcher.Constraint("Horizontal", 7))
sketch6.addConstraint(Sketcher.Constraint("Horizontal", 10))
sketch6.addConstraint(Sketcher.Constraint("Vertical", 11))
sketch6.addConstraint(Sketcher.Constraint("Horizontal", 12))
sketch6.addConstraint(Sketcher.Constraint("Vertical", 13))
sketch6.addConstraint(Sketcher.Constraint("Horizontal", 14))
sketch6.addConstraint(Sketcher.Constraint("Vertical", 15))
sketch6.addConstraint(Sketcher.Constraint("Horizontal", 16))
sketch6.addConstraint(Sketcher.Constraint("Vertical", 17))
sketch6.addConstraint(Sketcher.Constraint("Equal", 8, 9))
sketch6.addConstraint(Sketcher.Constraint("Equal", 9, 18))
sketch6.addConstraint(Sketcher.Constraint("Equal", 18, 19))
sketch6.addConstraint(Sketcher.Constraint("Symmetric", 8, 3, 18, 3, -2))
sketch6.addConstraint(Sketcher.Constraint("Symmetric", 9, 3, 19, 3, -2))
sketch6.addConstraint(Sketcher.Constraint("Symmetric", 0, 2, 10, 2, -2))
sketch6.addConstraint(Sketcher.Constraint("Symmetric", 6, 2, 12, 2, -2))
sketch6.addConstraint(Sketcher.Constraint("Symmetric", 4, 2, 14, 2, -2))
sketch6.addConstraint(Sketcher.Constraint("Symmetric", 2, 2, 16, 2, -2))
sketch6.addConstraint(Sketcher.Constraint("Vertical", 8, 3, 9, 3))
sketch6.addConstraint(Sketcher.Constraint("Vertical", 2, 2, 5, 2))
sketch6.addConstraint(Sketcher.Constraint("Equal", 2, 6))
sketch6.addConstraint(Sketcher.Constraint("Diameter", 8, 3.0))
sketch6.addConstraint(Sketcher.Constraint("DistanceX", 1, 1, 1, 2, 7.0))
sketch6.addConstraint(Sketcher.Constraint("DistanceX", 3, 1, 3, 2, 10.0))
sketch6.addConstraint(Sketcher.Constraint("DistanceY", 0, 2, 0, 1, 14.0))
sketch6.addConstraint(Sketcher.Constraint("DistanceY", 4, 1, 4, 2, 5.0))
sketch6.addConstraint(Sketcher.Constraint("DistanceX", -1, 1, 8, 3, 50.0))
sketch6.addConstraint(Sketcher.Constraint("DistanceY", 8, 3, -1, 1, 33.0))
sketch6.addConstraint(Sketcher.Constraint("DistanceY", 9, 3, -1, 1, 25.0))
sketch6.addConstraint(Sketcher.Constraint("DistanceX", -1, 1, 0, 2, 47.0))
sketch6.addConstraint(Sketcher.Constraint("DistanceY", 0, 2, -1, 1, 36.0))
sketch6.setExpression("Constraints[44]", "Params.sketch6_diameter")
sketch6.setExpression("Constraints[45]", "Params.sketch6_width")
sketch6.setExpression("Constraints[46]", "Params.sketch6_width2")
sketch6.setExpression("Constraints[47]", "Params.sketch6_height")
sketch6.setExpression("Constraints[48]", "Params.sketch6_height2")
pad4 = body.newObject("PartDesign::Pad", "Pad003")
pad4.Profile = sketch6
pad4.setExpression("Length", "Params.pad4_length")
pad4.Reversed = True

# Sketch on XY plane
sketch7 = body.newObject("Sketcher::SketchObject", "Sketch006")
sketch7.AttachmentSupport = (doc.getObject("XY_Plane"), [""])
sketch7.MapMode = "FlatFace"
sketch7.addGeometry(Part.LineSegment(V(64, -26, 0), V(64, -32, 0)), False)
sketch7.addGeometry(Part.LineSegment(V(64, -32, 0), V(54, -32, 0)), False)
sketch7.addGeometry(Part.LineSegment(V(54, -32, 0), V(54, -26, 0)), False)
sketch7.addGeometry(Part.LineSegment(V(54, -26, 0), V(64, -26, 0)), False)
sketch7.addGeometry(Part.LineSegment(V(-54, -26, 0), V(-54, -32, 0)), False)
sketch7.addGeometry(Part.LineSegment(V(-54, -32, 0), V(-64, -32, 0)), False)
sketch7.addGeometry(Part.LineSegment(V(-64, -32, 0), V(-64, -26, 0)), False)
sketch7.addGeometry(Part.LineSegment(V(-64, -26, 0), V(-54, -26, 0)), False)
sketch7.addConstraint(Sketcher.Constraint("Coincident", 0, 2, 1, 1))
sketch7.addConstraint(Sketcher.Constraint("Coincident", 1, 2, 2, 1))
sketch7.addConstraint(Sketcher.Constraint("Coincident", 2, 2, 3, 1))
sketch7.addConstraint(Sketcher.Constraint("Coincident", 3, 2, 0, 1))
sketch7.addConstraint(Sketcher.Constraint("Coincident", 4, 2, 5, 1))
sketch7.addConstraint(Sketcher.Constraint("Coincident", 5, 2, 6, 1))
sketch7.addConstraint(Sketcher.Constraint("Coincident", 6, 2, 7, 1))
sketch7.addConstraint(Sketcher.Constraint("Coincident", 7, 2, 4, 1))
sketch7.addConstraint(Sketcher.Constraint("Vertical", 0))
sketch7.addConstraint(Sketcher.Constraint("Horizontal", 1))
sketch7.addConstraint(Sketcher.Constraint("Vertical", 2))
sketch7.addConstraint(Sketcher.Constraint("Horizontal", 3))
sketch7.addConstraint(Sketcher.Constraint("Vertical", 4))
sketch7.addConstraint(Sketcher.Constraint("Horizontal", 5))
sketch7.addConstraint(Sketcher.Constraint("Vertical", 6))
sketch7.addConstraint(Sketcher.Constraint("Horizontal", 7))
sketch7.addConstraint(Sketcher.Constraint("Symmetric", 1, 2, 4, 2, -2))
sketch7.addConstraint(Sketcher.Constraint("Symmetric", 3, 2, 6, 2, -2))
sketch7.addConstraint(Sketcher.Constraint("DistanceX", 1, 2, 1, 1, 10.0))
sketch7.addConstraint(Sketcher.Constraint("DistanceY", 0, 2, 0, 1, 5.0))
sketch7.addConstraint(Sketcher.Constraint("DistanceX", -1, 1, 0, 2, 64.0))
sketch7.addConstraint(Sketcher.Constraint("DistanceY", 0, 2, -1, 1, 31.5))
sketch7.setExpression("Constraints[18]", "Params.sketch7_width")
sketch7.setExpression("Constraints[19]", "Params.sketch7_height")
pad5 = body.newObject("PartDesign::Pad", "Pad004")
pad5.Profile = sketch7
pad5.setExpression("Length", "Params.pad5_length")

# Sketch on XZ plane
sketch8 = body.newObject("Sketcher::SketchObject", "Sketch007")
sketch8.AttachmentSupport = (doc.getObject("XZ_Plane"), [""])
sketch8.MapMode = "FlatFace"
sketch8.AttachmentOffset = App.Placement(V(0, 0, 31.5), App.Rotation())
sketch8.addGeometry(Part.Circle(V(59.5, -1.1, 0), V(0, 0, 1), 2.1), False)
sketch8.addConstraint(Sketcher.Constraint("Diameter", 0, 4.2))
sketch8.addConstraint(Sketcher.Constraint("DistanceX", -1, 1, 0, 3, 59.5))
sketch8.addConstraint(Sketcher.Constraint("DistanceY", 0, 3, -1, 1, 1.1))
sketch8.setExpression("Constraints[0]", "Params.sketch8_diameter")
pocket3 = body.newObject("PartDesign::Pocket", "Pocket002")
pocket3.Profile = sketch8
pocket3.setExpression("Length", "Params.pocket3_length")
doc.recompute()

fillet2 = body.newObject("PartDesign::Fillet", "Fillet001")
fillet2.Base = (pocket3, edges_at(pocket3, [
    (54, -36, -2.5),
    (47, -36, -2.5),
    (47, -22, -2.5),
    (54, -22, -2.5),
    (64, -26.5, -0.55),
    (64, -31.5, -0.55),
    (-54, -36, -2.5),
    (-64, -31.5, -0.55),
    (-64, -26.5, -0.55),
    (-54, -22, -2.5),
    (-47, -22, -2.5),
    (-47, -36, -2.5),
]))
fillet2.setExpression("Radius", "Params.fillet2_radius")
doc.recompute()

fillet3 = body.newObject("PartDesign::Fillet", "Fillet002")
fillet3.Base = (fillet2, edges_at(fillet2, [
    (54, -31.5, -0.55),
    (54, -26.5, -0.55),
    (-54, -31.5, -0.55),
    (-54, -26.5, -0.55),
]))
fillet3.setExpression("Radius", "Params.fillet3_radius")
doc.recompute()

mirrored = body.newObject("PartDesign::Mirrored", "Mirrored")
mirrored.Originals = [pocket3]
mirrored.MirrorPlane = (doc.getObject("YZ_Plane"), [""])
body.Tip = mirrored

doc.recompute()
